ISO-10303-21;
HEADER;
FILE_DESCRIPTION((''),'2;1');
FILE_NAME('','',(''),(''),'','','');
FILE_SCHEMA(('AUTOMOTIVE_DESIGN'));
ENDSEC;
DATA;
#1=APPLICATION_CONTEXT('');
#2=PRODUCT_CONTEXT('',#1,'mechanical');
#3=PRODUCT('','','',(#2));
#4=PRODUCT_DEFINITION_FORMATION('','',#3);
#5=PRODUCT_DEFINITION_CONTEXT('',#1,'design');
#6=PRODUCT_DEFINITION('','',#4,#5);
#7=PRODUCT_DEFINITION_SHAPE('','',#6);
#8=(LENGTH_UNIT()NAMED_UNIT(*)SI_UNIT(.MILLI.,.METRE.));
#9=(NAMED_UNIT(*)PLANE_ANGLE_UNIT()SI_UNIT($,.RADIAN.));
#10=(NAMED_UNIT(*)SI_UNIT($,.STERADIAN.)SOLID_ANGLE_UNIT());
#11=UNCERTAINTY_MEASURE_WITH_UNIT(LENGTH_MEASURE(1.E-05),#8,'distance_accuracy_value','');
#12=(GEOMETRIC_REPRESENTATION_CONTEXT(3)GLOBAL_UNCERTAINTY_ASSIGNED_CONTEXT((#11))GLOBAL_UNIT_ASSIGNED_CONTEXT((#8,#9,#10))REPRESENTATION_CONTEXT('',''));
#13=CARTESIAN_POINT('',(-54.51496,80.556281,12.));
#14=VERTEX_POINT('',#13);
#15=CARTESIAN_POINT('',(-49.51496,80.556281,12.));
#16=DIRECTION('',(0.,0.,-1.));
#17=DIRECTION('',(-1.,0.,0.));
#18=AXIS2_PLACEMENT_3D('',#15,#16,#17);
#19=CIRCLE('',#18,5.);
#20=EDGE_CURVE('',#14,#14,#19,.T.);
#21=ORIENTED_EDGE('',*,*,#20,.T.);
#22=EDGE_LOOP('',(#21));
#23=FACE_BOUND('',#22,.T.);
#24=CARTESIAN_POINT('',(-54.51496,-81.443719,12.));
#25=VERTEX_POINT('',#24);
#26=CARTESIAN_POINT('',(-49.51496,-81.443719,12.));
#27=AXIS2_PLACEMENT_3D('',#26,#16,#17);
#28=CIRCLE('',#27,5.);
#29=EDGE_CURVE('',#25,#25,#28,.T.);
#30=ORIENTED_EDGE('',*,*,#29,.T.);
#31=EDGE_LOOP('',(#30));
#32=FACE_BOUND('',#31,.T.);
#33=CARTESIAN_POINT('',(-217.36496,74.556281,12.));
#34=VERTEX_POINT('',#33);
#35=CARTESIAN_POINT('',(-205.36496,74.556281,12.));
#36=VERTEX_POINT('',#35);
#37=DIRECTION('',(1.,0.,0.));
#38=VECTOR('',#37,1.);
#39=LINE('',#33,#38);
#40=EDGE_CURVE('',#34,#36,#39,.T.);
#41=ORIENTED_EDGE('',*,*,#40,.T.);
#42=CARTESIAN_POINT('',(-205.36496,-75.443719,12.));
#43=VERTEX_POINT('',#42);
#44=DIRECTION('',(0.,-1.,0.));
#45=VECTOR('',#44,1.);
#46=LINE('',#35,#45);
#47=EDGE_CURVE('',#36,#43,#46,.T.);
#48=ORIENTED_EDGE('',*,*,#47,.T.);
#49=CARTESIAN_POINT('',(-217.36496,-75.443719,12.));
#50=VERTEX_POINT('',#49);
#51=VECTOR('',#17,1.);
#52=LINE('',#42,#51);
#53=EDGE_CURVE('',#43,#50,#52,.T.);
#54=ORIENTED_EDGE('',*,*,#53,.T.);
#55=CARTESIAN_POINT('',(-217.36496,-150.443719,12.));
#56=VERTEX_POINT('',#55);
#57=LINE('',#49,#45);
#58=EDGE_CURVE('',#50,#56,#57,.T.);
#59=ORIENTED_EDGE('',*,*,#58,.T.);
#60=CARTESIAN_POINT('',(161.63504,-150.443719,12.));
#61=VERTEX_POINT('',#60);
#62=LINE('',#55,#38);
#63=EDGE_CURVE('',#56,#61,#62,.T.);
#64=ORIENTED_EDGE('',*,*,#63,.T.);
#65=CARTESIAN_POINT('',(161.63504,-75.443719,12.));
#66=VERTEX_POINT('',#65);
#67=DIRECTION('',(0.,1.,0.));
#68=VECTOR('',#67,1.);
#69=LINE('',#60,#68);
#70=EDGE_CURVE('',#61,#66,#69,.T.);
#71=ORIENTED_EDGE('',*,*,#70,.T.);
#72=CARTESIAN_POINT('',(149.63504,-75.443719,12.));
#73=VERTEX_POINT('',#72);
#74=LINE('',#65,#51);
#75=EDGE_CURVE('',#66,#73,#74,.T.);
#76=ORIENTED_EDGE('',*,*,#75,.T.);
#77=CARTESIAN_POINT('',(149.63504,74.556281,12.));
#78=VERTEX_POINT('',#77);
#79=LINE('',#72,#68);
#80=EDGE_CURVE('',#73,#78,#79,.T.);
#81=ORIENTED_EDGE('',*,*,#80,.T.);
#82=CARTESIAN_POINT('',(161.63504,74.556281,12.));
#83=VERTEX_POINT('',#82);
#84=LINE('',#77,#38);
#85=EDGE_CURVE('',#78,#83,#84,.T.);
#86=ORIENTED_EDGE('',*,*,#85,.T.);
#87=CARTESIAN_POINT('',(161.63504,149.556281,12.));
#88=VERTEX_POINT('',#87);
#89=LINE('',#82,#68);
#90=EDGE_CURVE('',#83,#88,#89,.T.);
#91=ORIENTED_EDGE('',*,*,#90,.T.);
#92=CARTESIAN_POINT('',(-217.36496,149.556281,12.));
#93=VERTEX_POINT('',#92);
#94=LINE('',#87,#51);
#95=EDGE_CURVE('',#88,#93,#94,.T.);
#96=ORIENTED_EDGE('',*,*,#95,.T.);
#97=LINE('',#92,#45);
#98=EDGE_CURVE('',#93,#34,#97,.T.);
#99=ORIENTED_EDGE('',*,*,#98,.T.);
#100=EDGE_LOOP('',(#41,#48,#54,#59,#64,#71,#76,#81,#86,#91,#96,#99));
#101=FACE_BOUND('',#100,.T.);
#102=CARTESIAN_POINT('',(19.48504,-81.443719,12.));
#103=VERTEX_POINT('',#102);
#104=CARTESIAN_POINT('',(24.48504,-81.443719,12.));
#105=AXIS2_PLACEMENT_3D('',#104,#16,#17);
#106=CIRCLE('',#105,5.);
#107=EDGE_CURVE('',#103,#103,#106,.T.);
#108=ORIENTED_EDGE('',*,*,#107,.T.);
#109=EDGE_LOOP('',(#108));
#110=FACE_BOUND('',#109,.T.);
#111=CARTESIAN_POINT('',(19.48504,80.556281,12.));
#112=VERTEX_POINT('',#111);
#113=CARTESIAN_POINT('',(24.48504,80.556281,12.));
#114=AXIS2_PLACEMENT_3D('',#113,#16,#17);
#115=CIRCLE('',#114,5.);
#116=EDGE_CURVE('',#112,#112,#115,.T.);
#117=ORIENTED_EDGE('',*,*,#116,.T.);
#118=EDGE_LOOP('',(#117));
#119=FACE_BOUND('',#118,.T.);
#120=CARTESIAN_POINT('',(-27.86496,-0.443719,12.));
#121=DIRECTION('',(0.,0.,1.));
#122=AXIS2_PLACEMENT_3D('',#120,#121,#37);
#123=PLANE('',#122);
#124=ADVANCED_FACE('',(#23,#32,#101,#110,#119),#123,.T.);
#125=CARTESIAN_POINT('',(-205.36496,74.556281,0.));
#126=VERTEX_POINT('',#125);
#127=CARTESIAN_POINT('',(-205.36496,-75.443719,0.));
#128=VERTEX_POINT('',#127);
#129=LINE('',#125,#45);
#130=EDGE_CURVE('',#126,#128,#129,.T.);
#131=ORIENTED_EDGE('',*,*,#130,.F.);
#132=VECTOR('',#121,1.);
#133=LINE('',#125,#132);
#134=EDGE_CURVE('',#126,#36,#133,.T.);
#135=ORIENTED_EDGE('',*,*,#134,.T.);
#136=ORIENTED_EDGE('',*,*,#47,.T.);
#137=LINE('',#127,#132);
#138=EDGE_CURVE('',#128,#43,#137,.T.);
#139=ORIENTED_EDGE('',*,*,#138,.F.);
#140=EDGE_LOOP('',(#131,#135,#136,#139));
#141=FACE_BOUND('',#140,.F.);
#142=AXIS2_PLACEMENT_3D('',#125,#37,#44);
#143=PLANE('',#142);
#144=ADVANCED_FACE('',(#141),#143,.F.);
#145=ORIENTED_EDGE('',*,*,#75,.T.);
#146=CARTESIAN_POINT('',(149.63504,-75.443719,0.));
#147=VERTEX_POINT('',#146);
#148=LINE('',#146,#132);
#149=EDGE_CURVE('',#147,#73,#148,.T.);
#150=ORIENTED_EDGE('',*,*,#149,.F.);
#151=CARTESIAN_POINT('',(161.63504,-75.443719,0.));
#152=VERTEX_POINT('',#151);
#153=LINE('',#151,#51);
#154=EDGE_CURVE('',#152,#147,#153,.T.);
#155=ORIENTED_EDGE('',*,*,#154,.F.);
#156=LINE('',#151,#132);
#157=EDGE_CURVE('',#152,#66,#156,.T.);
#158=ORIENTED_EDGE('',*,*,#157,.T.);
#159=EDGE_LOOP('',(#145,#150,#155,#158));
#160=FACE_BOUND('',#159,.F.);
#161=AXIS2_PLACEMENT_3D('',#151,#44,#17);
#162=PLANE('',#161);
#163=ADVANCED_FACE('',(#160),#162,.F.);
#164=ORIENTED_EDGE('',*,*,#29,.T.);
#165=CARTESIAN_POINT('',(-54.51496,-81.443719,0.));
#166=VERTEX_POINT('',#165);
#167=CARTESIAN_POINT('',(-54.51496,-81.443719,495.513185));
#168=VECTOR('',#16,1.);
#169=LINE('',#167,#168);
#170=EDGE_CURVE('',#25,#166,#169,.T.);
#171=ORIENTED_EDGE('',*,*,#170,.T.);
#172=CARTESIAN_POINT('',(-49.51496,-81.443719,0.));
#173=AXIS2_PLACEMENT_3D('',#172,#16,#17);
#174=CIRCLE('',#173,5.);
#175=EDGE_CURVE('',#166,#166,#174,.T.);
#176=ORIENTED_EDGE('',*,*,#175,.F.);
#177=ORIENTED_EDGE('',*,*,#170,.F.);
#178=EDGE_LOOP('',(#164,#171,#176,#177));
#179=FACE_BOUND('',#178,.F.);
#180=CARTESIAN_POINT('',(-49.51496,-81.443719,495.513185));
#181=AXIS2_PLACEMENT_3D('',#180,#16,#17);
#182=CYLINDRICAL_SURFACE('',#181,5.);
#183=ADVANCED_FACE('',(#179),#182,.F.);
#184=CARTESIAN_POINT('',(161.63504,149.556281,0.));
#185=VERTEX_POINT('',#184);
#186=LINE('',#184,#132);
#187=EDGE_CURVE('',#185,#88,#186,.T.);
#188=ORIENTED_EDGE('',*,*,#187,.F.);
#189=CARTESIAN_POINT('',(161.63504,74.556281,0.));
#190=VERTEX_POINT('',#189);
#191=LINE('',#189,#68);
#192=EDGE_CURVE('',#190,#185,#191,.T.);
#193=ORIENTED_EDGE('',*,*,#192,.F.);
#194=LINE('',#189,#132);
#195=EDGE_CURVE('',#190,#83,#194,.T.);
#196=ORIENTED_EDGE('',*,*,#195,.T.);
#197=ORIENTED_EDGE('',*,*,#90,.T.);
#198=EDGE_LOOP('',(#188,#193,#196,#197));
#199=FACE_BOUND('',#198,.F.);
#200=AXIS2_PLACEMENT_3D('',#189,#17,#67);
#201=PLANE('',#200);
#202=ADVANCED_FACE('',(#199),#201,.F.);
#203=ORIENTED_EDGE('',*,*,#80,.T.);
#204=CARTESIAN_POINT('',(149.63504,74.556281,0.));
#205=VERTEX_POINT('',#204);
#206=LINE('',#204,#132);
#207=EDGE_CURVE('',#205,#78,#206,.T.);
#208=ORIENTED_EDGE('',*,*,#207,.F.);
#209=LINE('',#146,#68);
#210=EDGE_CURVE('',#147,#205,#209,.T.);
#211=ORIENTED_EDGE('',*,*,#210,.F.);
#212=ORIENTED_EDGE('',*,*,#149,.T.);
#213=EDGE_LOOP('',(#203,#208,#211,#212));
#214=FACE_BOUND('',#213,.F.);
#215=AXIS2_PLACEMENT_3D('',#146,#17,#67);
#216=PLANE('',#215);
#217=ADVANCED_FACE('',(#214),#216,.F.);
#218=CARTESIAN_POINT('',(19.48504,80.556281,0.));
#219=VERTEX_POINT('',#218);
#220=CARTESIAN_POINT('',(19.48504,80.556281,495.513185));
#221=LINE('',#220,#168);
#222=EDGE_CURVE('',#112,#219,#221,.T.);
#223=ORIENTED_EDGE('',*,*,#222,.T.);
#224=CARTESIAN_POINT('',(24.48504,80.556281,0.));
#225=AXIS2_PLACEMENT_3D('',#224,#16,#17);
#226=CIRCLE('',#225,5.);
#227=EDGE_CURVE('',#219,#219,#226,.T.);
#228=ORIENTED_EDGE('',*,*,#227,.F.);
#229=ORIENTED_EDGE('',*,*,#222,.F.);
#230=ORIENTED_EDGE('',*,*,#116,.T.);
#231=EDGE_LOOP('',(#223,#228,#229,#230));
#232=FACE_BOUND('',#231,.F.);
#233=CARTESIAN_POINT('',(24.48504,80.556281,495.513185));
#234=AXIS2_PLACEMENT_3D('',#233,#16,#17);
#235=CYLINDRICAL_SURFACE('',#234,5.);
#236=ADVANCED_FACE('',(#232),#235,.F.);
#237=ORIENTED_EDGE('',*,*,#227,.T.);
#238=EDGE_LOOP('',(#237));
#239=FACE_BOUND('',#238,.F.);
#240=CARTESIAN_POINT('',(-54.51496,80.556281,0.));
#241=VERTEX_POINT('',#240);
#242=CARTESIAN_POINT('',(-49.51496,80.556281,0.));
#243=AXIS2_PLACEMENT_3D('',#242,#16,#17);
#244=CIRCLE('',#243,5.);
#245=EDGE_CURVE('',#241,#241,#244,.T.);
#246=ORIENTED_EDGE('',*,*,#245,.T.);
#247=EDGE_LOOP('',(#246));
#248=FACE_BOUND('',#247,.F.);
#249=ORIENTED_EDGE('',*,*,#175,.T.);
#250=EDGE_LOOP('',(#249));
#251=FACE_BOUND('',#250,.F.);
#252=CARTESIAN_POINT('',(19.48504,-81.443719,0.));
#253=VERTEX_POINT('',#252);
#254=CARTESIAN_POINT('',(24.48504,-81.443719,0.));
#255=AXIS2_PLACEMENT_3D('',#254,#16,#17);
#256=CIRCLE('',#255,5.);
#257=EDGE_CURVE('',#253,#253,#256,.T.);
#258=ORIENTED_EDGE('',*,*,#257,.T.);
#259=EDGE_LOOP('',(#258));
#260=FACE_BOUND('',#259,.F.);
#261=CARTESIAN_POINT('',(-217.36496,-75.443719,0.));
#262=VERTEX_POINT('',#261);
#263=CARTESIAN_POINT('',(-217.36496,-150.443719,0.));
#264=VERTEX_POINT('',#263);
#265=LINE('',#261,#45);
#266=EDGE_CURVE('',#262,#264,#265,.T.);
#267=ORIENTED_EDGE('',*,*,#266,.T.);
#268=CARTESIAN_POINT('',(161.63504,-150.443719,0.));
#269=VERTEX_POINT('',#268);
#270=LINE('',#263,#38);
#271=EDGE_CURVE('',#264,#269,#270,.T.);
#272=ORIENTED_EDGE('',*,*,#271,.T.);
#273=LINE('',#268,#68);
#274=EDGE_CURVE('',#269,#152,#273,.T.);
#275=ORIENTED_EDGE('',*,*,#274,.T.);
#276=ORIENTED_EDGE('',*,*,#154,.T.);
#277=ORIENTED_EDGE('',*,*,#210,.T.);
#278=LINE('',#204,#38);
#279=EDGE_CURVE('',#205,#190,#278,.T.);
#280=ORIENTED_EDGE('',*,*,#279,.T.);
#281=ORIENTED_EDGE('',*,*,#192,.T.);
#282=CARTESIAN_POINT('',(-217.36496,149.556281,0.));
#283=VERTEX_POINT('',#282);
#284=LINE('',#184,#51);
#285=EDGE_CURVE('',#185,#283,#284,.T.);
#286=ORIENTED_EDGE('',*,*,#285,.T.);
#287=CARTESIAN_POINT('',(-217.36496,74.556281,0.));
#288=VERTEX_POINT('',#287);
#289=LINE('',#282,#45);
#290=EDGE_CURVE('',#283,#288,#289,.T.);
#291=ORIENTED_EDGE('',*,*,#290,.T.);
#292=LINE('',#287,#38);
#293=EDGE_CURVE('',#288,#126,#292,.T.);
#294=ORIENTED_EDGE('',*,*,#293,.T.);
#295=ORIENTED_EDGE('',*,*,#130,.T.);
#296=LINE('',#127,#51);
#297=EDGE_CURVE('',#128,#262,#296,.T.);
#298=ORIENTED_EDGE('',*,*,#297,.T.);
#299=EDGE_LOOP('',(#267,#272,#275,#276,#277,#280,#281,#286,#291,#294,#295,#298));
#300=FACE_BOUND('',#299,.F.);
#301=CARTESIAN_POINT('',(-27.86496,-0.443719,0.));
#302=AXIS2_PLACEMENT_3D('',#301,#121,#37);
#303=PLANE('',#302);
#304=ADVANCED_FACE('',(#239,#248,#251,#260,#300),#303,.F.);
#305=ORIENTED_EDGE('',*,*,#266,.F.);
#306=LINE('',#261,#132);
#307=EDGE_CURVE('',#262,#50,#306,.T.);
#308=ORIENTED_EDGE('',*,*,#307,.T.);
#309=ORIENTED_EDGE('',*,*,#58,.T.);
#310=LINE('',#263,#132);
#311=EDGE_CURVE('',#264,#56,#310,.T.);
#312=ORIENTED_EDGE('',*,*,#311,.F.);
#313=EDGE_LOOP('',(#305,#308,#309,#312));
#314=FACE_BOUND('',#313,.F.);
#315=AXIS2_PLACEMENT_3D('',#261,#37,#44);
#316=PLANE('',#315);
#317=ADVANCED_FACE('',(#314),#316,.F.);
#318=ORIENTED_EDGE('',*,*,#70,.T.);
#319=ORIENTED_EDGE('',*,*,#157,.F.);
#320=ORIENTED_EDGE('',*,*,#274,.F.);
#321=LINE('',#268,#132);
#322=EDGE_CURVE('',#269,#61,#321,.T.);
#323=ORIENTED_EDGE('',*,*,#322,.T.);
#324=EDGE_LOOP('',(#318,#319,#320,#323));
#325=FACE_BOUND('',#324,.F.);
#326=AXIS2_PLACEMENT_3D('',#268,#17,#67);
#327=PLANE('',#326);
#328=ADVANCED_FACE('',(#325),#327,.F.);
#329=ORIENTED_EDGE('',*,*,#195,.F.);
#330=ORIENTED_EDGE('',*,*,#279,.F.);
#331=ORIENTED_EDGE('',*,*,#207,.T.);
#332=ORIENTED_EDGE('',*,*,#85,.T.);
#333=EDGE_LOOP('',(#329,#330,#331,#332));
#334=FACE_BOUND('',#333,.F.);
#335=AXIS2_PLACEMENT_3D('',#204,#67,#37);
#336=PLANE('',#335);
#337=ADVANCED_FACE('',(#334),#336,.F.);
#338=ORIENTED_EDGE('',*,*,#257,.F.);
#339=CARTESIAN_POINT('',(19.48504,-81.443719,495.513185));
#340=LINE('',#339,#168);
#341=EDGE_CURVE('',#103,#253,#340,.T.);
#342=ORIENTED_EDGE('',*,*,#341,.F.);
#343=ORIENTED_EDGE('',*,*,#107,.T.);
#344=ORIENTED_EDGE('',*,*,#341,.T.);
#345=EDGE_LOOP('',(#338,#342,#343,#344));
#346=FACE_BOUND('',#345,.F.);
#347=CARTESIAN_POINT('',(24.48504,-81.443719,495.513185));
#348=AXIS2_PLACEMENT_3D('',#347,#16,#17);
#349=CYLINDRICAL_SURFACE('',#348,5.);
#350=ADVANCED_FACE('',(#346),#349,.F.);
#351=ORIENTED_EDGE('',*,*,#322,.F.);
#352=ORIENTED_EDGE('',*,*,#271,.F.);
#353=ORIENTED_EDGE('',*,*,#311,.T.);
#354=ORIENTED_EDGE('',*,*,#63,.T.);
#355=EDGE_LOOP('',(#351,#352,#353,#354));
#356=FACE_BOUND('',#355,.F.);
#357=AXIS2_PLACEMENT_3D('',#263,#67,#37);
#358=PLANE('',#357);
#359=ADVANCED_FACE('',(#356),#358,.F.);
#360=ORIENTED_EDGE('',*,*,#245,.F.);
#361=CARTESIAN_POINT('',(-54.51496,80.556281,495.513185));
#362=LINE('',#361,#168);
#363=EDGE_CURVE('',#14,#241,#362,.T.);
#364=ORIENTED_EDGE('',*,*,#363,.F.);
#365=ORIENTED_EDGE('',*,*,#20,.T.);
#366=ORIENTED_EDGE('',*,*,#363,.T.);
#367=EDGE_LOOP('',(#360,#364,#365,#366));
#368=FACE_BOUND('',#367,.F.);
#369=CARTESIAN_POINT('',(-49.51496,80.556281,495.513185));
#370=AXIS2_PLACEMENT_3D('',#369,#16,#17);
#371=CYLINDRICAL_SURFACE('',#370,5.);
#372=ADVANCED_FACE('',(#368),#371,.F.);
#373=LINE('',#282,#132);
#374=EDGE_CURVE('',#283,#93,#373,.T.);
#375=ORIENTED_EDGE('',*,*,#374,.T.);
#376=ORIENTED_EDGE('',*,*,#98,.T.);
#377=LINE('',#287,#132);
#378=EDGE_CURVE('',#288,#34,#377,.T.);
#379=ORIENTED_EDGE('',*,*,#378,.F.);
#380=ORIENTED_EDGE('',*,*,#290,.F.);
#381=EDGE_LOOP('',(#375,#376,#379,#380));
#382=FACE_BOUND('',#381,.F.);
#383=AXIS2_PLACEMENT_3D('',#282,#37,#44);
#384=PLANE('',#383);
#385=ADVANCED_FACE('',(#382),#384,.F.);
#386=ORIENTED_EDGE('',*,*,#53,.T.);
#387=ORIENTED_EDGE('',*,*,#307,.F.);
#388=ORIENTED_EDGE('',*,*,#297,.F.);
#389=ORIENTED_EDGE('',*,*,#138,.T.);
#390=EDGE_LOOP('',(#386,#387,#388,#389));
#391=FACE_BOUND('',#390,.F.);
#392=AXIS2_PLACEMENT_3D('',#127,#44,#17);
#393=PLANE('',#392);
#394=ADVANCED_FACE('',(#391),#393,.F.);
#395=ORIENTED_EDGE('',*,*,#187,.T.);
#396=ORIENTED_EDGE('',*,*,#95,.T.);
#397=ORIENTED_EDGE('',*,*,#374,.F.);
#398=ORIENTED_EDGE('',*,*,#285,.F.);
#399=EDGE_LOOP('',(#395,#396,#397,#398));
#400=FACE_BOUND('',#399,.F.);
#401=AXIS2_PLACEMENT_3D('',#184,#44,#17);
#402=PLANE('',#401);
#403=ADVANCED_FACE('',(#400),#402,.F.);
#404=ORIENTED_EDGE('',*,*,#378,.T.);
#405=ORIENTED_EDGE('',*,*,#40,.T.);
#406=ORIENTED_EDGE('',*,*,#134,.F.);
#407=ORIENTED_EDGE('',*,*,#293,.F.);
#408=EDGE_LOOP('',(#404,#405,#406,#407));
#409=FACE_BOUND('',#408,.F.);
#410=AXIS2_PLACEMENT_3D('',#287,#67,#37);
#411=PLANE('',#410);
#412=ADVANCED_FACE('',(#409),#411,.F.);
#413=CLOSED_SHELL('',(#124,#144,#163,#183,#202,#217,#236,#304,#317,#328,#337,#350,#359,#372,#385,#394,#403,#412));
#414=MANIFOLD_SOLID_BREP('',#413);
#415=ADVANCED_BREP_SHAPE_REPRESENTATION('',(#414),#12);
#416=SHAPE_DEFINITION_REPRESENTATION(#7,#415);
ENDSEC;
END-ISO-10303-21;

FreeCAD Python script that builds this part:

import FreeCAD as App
import Part
import Sketcher
from FreeCAD import Vector
Q = App.Units.Quantity


def add_polygon(sketch, points):
    """Adds a closed chain of lines whose ends are joined by coincident constraints."""
    first, n = sketch.GeometryCount, len(points)
    for a, b in zip(points, points[1:] + points[:1]):
        sketch.addGeometry(Part.LineSegment(App.Vector(*a, 0), App.Vector(*b, 0)), False)
    for i in range(n):
        sketch.addConstraint(Sketcher.Constraint("Coincident", first + i, 2, first + (i + 1) % n, 1))

doc = App.newDocument("Part")
body = doc.addObject("PartDesign::Body", "Body")

sketch1 = body.newObject("Sketcher::SketchObject", "Sketch")
sketch1.AttachmentSupport = (doc.getObject("XY_Plane"), [""])
sketch1.MapMode = "FlatFace"
add_polygon(sketch1, [(161.63504, 149.556281), (-217.36496, 149.556281), (-217.36496, 74.556281), (-205.36496, 74.556281), (-205.36496, -75.443719), (-217.36496, -75.443719), (-217.36496, -150.443719), (161.63504, -150.443719), (161.63504, -75.443719), (149.63504, -75.443719), (149.63504, 74.556281), (161.63504, 74.556281)])
sketch1.addConstraint([
    Sketcher.Constraint("Horizontal", 0),
    Sketcher.Constraint("Vertical", 1),
    Sketcher.Constraint("Horizontal", 2),
    Sketcher.Constraint("Vertical", 3),
    Sketcher.Constraint("Horizontal", 4),
    Sketcher.Constraint("Vertical", 5),
    Sketcher.Constraint("Horizontal", 6),
    Sketcher.Constraint("Vertical", 7),
    Sketcher.Constraint("Horizontal", 8),
    Sketcher.Constraint("Vertical", 9),
    Sketcher.Constraint("Horizontal", 10),
    Sketcher.Constraint("Vertical", 11),
    Sketcher.Constraint("Horizontal", 4, 2, 7, 2),
    Sketcher.Constraint("Horizontal", 2, 2, 9, 2),
    Sketcher.Constraint("Vertical", 1, 2, 4, 2),
    Sketcher.Constraint("Vertical", 7, 2, 10, 2),
    Sketcher.Constraint("Equal", 4, 8),
    Sketcher.Constraint("Equal", 1, 5),
    Sketcher.Constraint("DistanceX", 0, 2, 0, 1, Q("379 mm")),
    Sketcher.Constraint("DistanceX", 2, 1, 2, 2, Q("12 mm")),
    Sketcher.Constraint("DistanceY", 1, 2, 1, 1, Q("75 mm")),
    Sketcher.Constraint("DistanceY", 3, 2, 3, 1, Q("150 mm")),
    Sketcher.Constraint("DistanceX", 0, 2, -1, 1, Q("217.36496 mm")),
    Sketcher.Constraint("DistanceY", -1, 1, 0, 2, Q("149.556281 mm")),
])
pad1 = body.newObject("PartDesign::Pad", "Pad")
pad1.Profile = sketch1
pad1.Length = 12

sketch2 = body.newObject("Sketcher::SketchObject", "Sketch001")
sketch2.AttachmentSupport = (doc.getObject("XY_Plane"), [""])
sketch2.MapMode = "FlatFace"
sketch2.AttachmentOffset = App.Placement(Vector(0, 0, 12), App.Rotation())
sketch2.addGeometry([
    Part.Circle(Vector(-49.51496, 80.556281, 0), Vector(0, 0, 1), 5),
    Part.Circle(Vector(24.48504, 80.556281, 0), Vector(0, 0, 1), 5),
    Part.Circle(Vector(24.48504, -81.443719, 0), Vector(0, 0, 1), 5),
    Part.Circle(Vector(-49.51496, -81.443719, 0), Vector(0, 0, 1), 5),
], False)
sketch2.addConstraint([
    Sketcher.Constraint("Equal", 0, 1),
    Sketcher.Constraint("Equal", 1, 2),
    Sketcher.Constraint("Equal", 2, 3),
    Sketcher.Constraint("Horizontal", 0, 3, 1, 3),
    Sketcher.Constraint("Horizontal", 2, 3, 3, 3),
    Sketcher.Constraint("Vertical", 1, 3, 2, 3),
    Sketcher.Constraint("Vertical", 0, 3, 3, 3),
    Sketcher.Constraint("Diameter", 0, Q("10 mm")),
    Sketcher.Constraint("DistanceX", 0, 3, 1, 3, Q("74 mm")),
    Sketcher.Constraint("DistanceY", 2, 3, 1, 3, Q("162 mm")),
    Sketcher.Constraint("DistanceX", 0, 3, -1, 1, Q("49.51496 mm")),
    Sketcher.Constraint("DistanceY", -1, 1, 0, 3, Q("80.556281 mm")),
])
doc.recompute()
hole = body.newObject("PartDesign::Hole", "Hole")
hole.Profile = sketch2
hole.ThreadType = "None"
hole.Diameter = 10
hole.DepthType = "ThroughAll"

doc.recompute()
